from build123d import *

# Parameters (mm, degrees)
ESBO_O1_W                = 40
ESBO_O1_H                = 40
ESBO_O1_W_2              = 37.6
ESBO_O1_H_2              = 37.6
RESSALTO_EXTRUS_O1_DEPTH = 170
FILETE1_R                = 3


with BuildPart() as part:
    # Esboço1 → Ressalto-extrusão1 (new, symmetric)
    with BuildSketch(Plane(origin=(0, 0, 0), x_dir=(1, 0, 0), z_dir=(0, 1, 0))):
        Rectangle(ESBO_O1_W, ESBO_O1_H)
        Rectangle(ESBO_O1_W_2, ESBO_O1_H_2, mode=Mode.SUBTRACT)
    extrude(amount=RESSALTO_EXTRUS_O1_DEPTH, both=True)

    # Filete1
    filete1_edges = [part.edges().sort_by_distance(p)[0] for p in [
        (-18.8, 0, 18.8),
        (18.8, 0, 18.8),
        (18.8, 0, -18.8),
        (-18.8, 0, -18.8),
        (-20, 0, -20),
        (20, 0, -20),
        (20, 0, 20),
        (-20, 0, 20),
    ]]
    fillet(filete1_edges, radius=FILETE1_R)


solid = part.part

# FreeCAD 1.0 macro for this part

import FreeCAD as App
import Part
import Sketcher
from FreeCAD import Vector
Q = App.Units.Quantity


def edges_at(feature, points):
    """Names of the edges that pass closest to the given points."""
    edges = feature.Shape.Edges
    near = lambda p: min(range(len(edges)), key=lambda i: edges[i].distToShape(Part.Vertex(*p))[0])
    return sorted({f"Edge{near(p) + 1}" for p in points})


def add_polygon(sketch, points):
    """Adds a closed chain of lines whose ends are joined by coincident constraints."""
    first, n = sketch.GeometryCount, len(points)
    for a, b in zip(points, points[1:] + points[:1]):
        sketch.addGeometry(Part.LineSegment(App.Vector(*a, 0), App.Vector(*b, 0)), False)
    for i in range(n):
        sketch.addConstraint(Sketcher.Constraint("Coincident", first + i, 2, first + (i + 1) % n, 1))

doc = App.newDocument("Part")
body = doc.addObject("PartDesign::Body", "Body")

# Sketch on XZ plane
sketch1 = body.newObject("Sketcher::SketchObject", "Sketch")
sketch1.AttachmentSupport = (doc.getObject("XZ_Plane"), [""])
sketch1.MapMode = "FlatFace"
add_polygon(sketch1, [(-20, -20), (-20, 20), (20, 20), (20, -20)])  # lines 0-3
add_polygon(sketch1, [(19, 19), (-19, 19), (-19, -19), (19, -19)])  # lines 4-7
sketch1.addConstraint(Sketcher.Constraint("Vertical", 0))
sketch1.addConstraint(Sketcher.Constraint("Horizontal", 1))
sketch1.addConstraint(Sketcher.Constraint("Vertical", 2))
sketch1.addConstraint(Sketcher.Constraint("Horizontal", 3))
sketch1.addConstraint(Sketcher.Constraint("Horizontal", 4))
sketch1.addConstraint(Sketcher.Constraint("Vertical", 5))
sketch1.addConstraint(Sketcher.Constraint("Horizontal", 6))
sketch1.addConstraint(Sketcher.Constraint("Vertical", 7))
sketch1.addConstraint(Sketcher.Constraint("Symmetric", 0, 2, 2, 2, -1, 1))
sketch1.addConstraint(Sketcher.Constraint("Symmetric", 4, 2, 6, 2, -1, 1))
sketch1.addConstraint(Sketcher.Constraint("Equal", 3, 0))
sketch1.addConstraint(Sketcher.Constraint("Equal", 6, 5))
sketch1.addConstraint(Sketcher.Constraint("DistanceX", 1, 1, 1, 2, Q("40 mm")))
sketch1.addConstraint(Sketcher.Constraint("DistanceX", 4, 2, 4, 1, Q("37.6 mm")))
pad1 = body.newObject("PartDesign::Pad", "Pad")
pad1.Profile = sketch1
pad1.Length = 340
pad1.Midplane = True
doc.recompute()

fillet = body.newObject("PartDesign::Fillet", "Fillet")
fillet.Base = (pad1, edges_at(pad1, [
    (-18.8, 0, 18.8),
    (18.8, 0, 18.8),
    (18.8, 0, -18.8),
    (-18.8, 0, -18.8),
    (-20, 0, -20),
    (20, 0, -20),
    (20, 0, 20),
    (-20, 0, 20),
]))
fillet.Radius = 3

doc.recompute()
